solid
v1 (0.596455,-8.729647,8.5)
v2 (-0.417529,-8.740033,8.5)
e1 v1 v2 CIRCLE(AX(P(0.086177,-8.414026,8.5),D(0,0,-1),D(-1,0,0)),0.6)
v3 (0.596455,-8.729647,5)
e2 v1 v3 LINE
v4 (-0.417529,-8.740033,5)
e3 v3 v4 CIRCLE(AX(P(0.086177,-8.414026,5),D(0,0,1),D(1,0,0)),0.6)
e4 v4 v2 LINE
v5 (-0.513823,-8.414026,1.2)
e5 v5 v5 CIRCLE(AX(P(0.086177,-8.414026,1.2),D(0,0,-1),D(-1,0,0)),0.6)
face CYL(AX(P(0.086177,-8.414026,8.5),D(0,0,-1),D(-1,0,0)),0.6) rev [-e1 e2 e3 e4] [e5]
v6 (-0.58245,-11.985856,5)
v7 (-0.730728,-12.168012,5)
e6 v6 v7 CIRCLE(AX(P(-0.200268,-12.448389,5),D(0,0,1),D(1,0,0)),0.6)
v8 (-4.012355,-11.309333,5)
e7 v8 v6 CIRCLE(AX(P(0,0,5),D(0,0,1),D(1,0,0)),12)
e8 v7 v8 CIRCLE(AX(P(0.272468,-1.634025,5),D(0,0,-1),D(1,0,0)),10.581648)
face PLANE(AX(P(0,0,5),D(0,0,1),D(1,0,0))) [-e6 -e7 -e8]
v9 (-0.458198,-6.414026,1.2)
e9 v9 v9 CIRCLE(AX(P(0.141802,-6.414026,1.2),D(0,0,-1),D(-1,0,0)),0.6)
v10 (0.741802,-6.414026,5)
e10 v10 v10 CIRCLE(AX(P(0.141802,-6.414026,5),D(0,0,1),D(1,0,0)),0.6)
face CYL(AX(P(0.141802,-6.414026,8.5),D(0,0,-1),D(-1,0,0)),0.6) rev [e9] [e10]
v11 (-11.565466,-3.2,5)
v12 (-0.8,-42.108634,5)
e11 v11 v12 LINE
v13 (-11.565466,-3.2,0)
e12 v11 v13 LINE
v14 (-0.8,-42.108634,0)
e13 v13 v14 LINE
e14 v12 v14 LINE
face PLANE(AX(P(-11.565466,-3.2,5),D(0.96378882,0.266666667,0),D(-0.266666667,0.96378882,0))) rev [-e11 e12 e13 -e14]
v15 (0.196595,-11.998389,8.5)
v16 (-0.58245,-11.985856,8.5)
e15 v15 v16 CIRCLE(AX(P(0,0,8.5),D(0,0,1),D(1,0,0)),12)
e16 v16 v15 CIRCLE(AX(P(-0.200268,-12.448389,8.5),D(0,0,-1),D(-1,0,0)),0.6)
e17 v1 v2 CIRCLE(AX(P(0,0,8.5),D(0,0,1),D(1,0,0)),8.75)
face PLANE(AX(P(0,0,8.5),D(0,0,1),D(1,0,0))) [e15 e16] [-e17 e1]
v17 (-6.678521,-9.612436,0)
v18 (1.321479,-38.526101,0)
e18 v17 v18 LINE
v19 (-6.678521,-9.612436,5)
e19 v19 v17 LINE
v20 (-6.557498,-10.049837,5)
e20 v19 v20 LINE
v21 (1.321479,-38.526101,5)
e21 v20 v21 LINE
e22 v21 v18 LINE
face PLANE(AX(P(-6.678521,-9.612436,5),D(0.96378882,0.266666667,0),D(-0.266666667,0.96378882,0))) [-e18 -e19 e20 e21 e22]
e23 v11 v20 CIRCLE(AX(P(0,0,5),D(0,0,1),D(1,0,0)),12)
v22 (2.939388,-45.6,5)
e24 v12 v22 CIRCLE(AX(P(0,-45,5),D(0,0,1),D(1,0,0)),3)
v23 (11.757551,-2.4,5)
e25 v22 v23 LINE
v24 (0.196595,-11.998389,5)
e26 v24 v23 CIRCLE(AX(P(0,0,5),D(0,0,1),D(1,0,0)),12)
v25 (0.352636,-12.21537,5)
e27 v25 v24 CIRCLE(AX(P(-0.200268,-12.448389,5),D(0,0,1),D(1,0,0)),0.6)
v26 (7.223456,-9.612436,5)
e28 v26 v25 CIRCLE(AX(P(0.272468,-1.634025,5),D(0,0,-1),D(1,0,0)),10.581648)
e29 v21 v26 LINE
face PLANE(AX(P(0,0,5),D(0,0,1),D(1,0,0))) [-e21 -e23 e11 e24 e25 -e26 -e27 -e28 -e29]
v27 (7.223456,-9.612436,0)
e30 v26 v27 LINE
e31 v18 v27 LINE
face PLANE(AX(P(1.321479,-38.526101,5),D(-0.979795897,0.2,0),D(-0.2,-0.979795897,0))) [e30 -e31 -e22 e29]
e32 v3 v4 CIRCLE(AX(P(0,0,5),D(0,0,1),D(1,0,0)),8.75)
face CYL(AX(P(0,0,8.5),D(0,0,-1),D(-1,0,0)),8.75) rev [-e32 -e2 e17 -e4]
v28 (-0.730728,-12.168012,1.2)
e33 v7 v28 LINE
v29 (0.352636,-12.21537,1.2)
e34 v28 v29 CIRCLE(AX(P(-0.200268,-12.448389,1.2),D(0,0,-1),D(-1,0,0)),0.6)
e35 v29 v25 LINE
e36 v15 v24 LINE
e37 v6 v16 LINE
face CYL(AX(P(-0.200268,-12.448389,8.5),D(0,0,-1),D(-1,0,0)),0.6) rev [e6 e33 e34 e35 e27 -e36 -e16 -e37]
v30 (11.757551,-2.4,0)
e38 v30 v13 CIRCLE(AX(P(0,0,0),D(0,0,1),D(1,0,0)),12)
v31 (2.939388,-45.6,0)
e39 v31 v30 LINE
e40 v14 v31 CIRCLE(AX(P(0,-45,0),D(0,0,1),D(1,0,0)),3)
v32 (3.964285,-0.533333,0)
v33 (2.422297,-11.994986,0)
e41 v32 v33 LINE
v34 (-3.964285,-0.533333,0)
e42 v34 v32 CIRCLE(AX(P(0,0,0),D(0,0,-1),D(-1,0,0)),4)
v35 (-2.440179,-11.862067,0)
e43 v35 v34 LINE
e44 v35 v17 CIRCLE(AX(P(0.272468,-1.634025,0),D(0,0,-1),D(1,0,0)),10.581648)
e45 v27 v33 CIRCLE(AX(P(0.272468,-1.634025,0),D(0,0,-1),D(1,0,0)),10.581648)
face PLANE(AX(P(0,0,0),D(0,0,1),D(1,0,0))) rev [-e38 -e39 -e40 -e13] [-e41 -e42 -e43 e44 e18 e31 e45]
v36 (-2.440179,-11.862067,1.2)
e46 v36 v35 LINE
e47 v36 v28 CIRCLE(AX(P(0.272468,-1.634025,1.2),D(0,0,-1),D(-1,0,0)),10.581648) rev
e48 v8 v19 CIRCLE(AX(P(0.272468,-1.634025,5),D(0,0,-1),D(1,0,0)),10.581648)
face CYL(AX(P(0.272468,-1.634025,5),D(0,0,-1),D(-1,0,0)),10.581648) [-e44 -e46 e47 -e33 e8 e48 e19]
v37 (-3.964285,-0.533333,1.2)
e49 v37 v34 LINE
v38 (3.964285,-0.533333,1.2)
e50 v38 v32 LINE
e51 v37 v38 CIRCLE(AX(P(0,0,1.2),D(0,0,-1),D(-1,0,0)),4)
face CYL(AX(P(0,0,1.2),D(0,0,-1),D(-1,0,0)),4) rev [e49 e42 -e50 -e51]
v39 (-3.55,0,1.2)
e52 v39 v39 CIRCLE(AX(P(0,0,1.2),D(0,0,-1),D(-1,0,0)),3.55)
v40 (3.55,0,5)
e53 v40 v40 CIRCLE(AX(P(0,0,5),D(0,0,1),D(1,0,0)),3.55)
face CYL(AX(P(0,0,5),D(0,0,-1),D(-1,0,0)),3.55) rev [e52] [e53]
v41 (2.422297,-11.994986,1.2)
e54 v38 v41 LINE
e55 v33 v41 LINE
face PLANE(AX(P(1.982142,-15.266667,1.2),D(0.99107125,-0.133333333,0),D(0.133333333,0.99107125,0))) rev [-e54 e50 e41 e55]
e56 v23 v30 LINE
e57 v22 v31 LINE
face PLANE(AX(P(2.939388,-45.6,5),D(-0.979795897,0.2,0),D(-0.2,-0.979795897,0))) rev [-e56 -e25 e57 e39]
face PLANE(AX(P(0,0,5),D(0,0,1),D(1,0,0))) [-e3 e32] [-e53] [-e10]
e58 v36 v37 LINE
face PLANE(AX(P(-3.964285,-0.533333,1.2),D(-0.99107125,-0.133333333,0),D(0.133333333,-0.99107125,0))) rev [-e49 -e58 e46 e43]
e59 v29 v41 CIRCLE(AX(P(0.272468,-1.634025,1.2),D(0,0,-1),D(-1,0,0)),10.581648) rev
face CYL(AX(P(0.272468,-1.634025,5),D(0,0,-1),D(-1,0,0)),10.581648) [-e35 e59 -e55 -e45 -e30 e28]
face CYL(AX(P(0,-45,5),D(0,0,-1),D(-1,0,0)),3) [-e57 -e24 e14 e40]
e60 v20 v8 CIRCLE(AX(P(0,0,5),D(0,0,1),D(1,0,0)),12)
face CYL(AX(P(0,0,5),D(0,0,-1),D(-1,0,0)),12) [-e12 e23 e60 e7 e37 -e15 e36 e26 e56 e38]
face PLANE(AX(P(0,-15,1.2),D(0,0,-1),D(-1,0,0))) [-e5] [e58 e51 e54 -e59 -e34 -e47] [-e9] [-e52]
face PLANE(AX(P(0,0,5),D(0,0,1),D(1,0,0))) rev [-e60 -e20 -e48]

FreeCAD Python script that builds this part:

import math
import FreeCAD as App
import Part
import Sketcher

doc = App.newDocument("Part")
body = doc.addObject("PartDesign::Body", "Body")

# Sketch on XY plane
sketch1 = doc.addObject("Sketcher::SketchObject", "Sketch")
body.addObject(sketch1)
sketch1.AttachmentSupport = (doc.XY_Plane, [""])
sketch1.MapMode = "FlatFace"
sketch1.addGeometry([
    Part.LineSegment(App.Vector(2.9, -45.6, 0), App.Vector(11.8, -2.4, 0)),  # 0
    Part.ArcOfCircle(Part.Circle(App.Vector(0, 0, 0), App.Vector(0, 0, 1), 12), math.radians(-12), math.radians(195)),  # 1
    Part.LineSegment(App.Vector(-11.6, -3.2, 0), App.Vector(-0.8, -42.1, 0)),  # 2
    Part.ArcOfCircle(Part.Circle(App.Vector(0, -45, 0), App.Vector(0, 0, 1), 3), math.radians(105), math.radians(348)),  # 3
    Part.LineSegment(App.Vector(7.2, -9.6, 0), App.Vector(1.3, -38.5, 0)),  # 4
    Part.LineSegment(App.Vector(1.3, -38.5, 0), App.Vector(-6.7, -9.6, 0)),  # 5
    Part.ArcOfCircle(Part.Circle(App.Vector(0.3, -1.6, 0), App.Vector(0, 0, 1), 10.6), math.radians(-131), math.radians(-49)),  # 6
    Part.Circle(App.Vector(0, 0, 0), App.Vector(0, 0, 1), 3.5),  # 7
], False)
sketch1.addConstraint([
    Sketcher.Constraint("Tangent", 0, 2, 1, 1),
    Sketcher.Constraint("Tangent", 1, 2, 2, 1),
    Sketcher.Constraint("Coincident", 2, 2, 3, 1),
    Sketcher.Constraint("Tangent", 3, 2, 0, 1),
    Sketcher.Constraint("Coincident", 4, 2, 5, 1),
    Sketcher.Constraint("Coincident", 5, 2, 6, 1),
    Sketcher.Constraint("Coincident", 6, 2, 4, 1),
    Sketcher.Constraint("Coincident", 1, 3, -1, 1),
    Sketcher.Constraint("Coincident", 7, 3, -1, 1),
    Sketcher.Constraint("PointOnObject", 3, 3, -2),
    Sketcher.Constraint("Parallel", 0, 4),
    Sketcher.Constraint("Parallel", 2, 5),
    Sketcher.Constraint("Horizontal", 5, 2, 6, 2),
    Sketcher.Constraint("Radius", 1, 12.0),
    Sketcher.Constraint("Radius", 3, 3.0),
    Sketcher.Constraint("Diameter", 7, 7.1),
    Sketcher.Constraint("Distance", 5, 30.0),
    Sketcher.Constraint("DistanceY", 3, 3, -1, 1, 45.0),
    Sketcher.Constraint("DistanceY", 1, 2, -1, 1, 3.2),
    Sketcher.Constraint("Radius", 6, 10.581648),
    Sketcher.Constraint("DistanceY", 4, 2, -1, 1, 38.526101),
    Sketcher.Constraint("DistanceX", -1, 1, 4, 2, 1.321479),
])
pad1 = doc.addObject("PartDesign::Pad", "Pad")
body.addObject(pad1)
pad1.Profile = sketch1
pad1.Length = 5

# Sketch on XY plane
sketch2 = doc.addObject("Sketcher::SketchObject", "Sketch001")
body.addObject(sketch2)
sketch2.AttachmentSupport = (doc.XY_Plane, [""])
sketch2.MapMode = "FlatFace"
sketch2.addGeometry([
    Part.LineSegment(App.Vector(4, -0.5, 0), App.Vector(2, -15.3, 0)),
    Part.ArcOfCircle(Part.Circle(App.Vector(0, -15, 0), App.Vector(0, 0, 1), 2), math.radians(-172), math.radians(-8)),
    Part.LineSegment(App.Vector(-2, -15.3, 0), App.Vector(-4, -0.5, 0)),
    Part.ArcOfCircle(Part.Circle(App.Vector(0, 0, 0), App.Vector(0, 0, 1), 4), math.radians(-8), math.radians(188)),
], False)
sketch2.addConstraint([
    Sketcher.Constraint("Tangent", 0, 2, 1, 2),
    Sketcher.Constraint("Tangent", 1, 1, 2, 1),
    Sketcher.Constraint("Tangent", 2, 2, 3, 2),
    Sketcher.Constraint("Tangent", 3, 1, 0, 1),
    Sketcher.Constraint("Coincident", 3, 3, -1, 1),
    Sketcher.Constraint("PointOnObject", 1, 3, -2),
    Sketcher.Constraint("Radius", 1, 2.0),
    Sketcher.Constraint("Radius", 3, 4.0),
    Sketcher.Constraint("DistanceY", 1, 3, -1, 1, 15.0),
])
pocket1 = doc.addObject("PartDesign::Pocket", "Pocket")
body.addObject(pocket1)
pocket1.Profile = sketch2
pocket1.Length = 1.2
pocket1.Reversed = True

# Sketch on XY plane
sketch3 = doc.addObject("Sketcher::SketchObject", "Sketch002")
body.addObject(sketch3)
sketch3.AttachmentSupport = (doc.XY_Plane, [""])
sketch3.MapMode = "FlatFace"
sketch3.AttachmentOffset = App.Placement(App.Vector(0, 0, 5), App.Rotation())
sketch3.addGeometry([
    Part.ArcOfCircle(Part.Circle(App.Vector(0, 0, 0), App.Vector(0, 0, 1), 12), math.radians(-12), math.radians(195)),
    Part.ArcOfCircle(Part.Circle(App.Vector(0, 0, 0), App.Vector(0, 0, 1), 12), math.radians(-165), math.radians(-12)),
    Part.Circle(App.Vector(0, 0, 0), App.Vector(0, 0, 1), 9),
], False)
sketch3.addConstraint([
    Sketcher.Constraint("Tangent", 0, 1, 1, 2),
    Sketcher.Constraint("Coincident", 1, 1, 0, 2),
    Sketcher.Constraint("Coincident", 0, 3, -1, 1),
    Sketcher.Constraint("Coincident", 2, 3, -1, 1),
    Sketcher.Constraint("Radius", 0, 12.0),
    Sketcher.Constraint("Diameter", 2, 17.5),
    Sketcher.Constraint("DistanceY", 0, 1, -1, 1, 2.4),
    Sketcher.Constraint("DistanceY", 1, 1, -1, 1, 3.2),
])
pad2 = doc.addObject("PartDesign::Pad", "Pad001")
body.addObject(pad2)
pad2.Profile = sketch3
pad2.Length = 3.5

# Sketch on XY plane
sketch4 = doc.addObject("Sketcher::SketchObject", "Sketch003")
body.addObject(sketch4)
sketch4.AttachmentSupport = (doc.XY_Plane, [""])
sketch4.MapMode = "FlatFace"
sketch4.AttachmentOffset = App.Placement(App.Vector(0, 0, 1.2), App.Rotation())
sketch4.addGeometry([
    Part.Circle(App.Vector(0.1, -6.4, 0), App.Vector(0, 0, 1), 0.6),
    Part.Circle(App.Vector(0.1, -8.4, 0), App.Vector(0, 0, 1), 0.6),
    Part.Circle(App.Vector(-0.2, -14.4, 0), App.Vector(0, 0, 1), 0.6),
    Part.Circle(App.Vector(-0.2, -12.4, 0), App.Vector(0, 0, 1), 0.6),
], False)
sketch4.addConstraint([
    Sketcher.Constraint("Equal", 0, 1),
    Sketcher.Constraint("Equal", 1, 2),
    Sketcher.Constraint("Equal", 2, 3),
    Sketcher.Constraint("Diameter", 0, 1.2),
    Sketcher.Constraint("DistanceY", 1, 3, 0, 3, 2.0),
    Sketcher.Constraint("DistanceX", 2, 3, -1, 1, 0.232439),
    Sketcher.Constraint("DistanceY", 2, 3, -1, 1, 14.44813),
    Sketcher.Constraint("DistanceY", 3, 3, -1, 1, 12.448389),
    Sketcher.Constraint("DistanceX", 2, 3, 0, 3, 0.374241),
    Sketcher.Constraint("DistanceX", 2, 3, 3, 3, 0.032171),
    Sketcher.Constraint("DistanceY", 0, 3, -1, 1, 6.414026),
    Sketcher.Constraint("DistanceX", -1, 1, 1, 3, 0.086177),
])
pocket2 = doc.addObject("PartDesign::Pocket", "Pocket001")
body.addObject(pocket2)
pocket2.Profile = sketch4
pocket2.Type = "ThroughAll"
pocket2.Midplane = True

doc.recompute()
